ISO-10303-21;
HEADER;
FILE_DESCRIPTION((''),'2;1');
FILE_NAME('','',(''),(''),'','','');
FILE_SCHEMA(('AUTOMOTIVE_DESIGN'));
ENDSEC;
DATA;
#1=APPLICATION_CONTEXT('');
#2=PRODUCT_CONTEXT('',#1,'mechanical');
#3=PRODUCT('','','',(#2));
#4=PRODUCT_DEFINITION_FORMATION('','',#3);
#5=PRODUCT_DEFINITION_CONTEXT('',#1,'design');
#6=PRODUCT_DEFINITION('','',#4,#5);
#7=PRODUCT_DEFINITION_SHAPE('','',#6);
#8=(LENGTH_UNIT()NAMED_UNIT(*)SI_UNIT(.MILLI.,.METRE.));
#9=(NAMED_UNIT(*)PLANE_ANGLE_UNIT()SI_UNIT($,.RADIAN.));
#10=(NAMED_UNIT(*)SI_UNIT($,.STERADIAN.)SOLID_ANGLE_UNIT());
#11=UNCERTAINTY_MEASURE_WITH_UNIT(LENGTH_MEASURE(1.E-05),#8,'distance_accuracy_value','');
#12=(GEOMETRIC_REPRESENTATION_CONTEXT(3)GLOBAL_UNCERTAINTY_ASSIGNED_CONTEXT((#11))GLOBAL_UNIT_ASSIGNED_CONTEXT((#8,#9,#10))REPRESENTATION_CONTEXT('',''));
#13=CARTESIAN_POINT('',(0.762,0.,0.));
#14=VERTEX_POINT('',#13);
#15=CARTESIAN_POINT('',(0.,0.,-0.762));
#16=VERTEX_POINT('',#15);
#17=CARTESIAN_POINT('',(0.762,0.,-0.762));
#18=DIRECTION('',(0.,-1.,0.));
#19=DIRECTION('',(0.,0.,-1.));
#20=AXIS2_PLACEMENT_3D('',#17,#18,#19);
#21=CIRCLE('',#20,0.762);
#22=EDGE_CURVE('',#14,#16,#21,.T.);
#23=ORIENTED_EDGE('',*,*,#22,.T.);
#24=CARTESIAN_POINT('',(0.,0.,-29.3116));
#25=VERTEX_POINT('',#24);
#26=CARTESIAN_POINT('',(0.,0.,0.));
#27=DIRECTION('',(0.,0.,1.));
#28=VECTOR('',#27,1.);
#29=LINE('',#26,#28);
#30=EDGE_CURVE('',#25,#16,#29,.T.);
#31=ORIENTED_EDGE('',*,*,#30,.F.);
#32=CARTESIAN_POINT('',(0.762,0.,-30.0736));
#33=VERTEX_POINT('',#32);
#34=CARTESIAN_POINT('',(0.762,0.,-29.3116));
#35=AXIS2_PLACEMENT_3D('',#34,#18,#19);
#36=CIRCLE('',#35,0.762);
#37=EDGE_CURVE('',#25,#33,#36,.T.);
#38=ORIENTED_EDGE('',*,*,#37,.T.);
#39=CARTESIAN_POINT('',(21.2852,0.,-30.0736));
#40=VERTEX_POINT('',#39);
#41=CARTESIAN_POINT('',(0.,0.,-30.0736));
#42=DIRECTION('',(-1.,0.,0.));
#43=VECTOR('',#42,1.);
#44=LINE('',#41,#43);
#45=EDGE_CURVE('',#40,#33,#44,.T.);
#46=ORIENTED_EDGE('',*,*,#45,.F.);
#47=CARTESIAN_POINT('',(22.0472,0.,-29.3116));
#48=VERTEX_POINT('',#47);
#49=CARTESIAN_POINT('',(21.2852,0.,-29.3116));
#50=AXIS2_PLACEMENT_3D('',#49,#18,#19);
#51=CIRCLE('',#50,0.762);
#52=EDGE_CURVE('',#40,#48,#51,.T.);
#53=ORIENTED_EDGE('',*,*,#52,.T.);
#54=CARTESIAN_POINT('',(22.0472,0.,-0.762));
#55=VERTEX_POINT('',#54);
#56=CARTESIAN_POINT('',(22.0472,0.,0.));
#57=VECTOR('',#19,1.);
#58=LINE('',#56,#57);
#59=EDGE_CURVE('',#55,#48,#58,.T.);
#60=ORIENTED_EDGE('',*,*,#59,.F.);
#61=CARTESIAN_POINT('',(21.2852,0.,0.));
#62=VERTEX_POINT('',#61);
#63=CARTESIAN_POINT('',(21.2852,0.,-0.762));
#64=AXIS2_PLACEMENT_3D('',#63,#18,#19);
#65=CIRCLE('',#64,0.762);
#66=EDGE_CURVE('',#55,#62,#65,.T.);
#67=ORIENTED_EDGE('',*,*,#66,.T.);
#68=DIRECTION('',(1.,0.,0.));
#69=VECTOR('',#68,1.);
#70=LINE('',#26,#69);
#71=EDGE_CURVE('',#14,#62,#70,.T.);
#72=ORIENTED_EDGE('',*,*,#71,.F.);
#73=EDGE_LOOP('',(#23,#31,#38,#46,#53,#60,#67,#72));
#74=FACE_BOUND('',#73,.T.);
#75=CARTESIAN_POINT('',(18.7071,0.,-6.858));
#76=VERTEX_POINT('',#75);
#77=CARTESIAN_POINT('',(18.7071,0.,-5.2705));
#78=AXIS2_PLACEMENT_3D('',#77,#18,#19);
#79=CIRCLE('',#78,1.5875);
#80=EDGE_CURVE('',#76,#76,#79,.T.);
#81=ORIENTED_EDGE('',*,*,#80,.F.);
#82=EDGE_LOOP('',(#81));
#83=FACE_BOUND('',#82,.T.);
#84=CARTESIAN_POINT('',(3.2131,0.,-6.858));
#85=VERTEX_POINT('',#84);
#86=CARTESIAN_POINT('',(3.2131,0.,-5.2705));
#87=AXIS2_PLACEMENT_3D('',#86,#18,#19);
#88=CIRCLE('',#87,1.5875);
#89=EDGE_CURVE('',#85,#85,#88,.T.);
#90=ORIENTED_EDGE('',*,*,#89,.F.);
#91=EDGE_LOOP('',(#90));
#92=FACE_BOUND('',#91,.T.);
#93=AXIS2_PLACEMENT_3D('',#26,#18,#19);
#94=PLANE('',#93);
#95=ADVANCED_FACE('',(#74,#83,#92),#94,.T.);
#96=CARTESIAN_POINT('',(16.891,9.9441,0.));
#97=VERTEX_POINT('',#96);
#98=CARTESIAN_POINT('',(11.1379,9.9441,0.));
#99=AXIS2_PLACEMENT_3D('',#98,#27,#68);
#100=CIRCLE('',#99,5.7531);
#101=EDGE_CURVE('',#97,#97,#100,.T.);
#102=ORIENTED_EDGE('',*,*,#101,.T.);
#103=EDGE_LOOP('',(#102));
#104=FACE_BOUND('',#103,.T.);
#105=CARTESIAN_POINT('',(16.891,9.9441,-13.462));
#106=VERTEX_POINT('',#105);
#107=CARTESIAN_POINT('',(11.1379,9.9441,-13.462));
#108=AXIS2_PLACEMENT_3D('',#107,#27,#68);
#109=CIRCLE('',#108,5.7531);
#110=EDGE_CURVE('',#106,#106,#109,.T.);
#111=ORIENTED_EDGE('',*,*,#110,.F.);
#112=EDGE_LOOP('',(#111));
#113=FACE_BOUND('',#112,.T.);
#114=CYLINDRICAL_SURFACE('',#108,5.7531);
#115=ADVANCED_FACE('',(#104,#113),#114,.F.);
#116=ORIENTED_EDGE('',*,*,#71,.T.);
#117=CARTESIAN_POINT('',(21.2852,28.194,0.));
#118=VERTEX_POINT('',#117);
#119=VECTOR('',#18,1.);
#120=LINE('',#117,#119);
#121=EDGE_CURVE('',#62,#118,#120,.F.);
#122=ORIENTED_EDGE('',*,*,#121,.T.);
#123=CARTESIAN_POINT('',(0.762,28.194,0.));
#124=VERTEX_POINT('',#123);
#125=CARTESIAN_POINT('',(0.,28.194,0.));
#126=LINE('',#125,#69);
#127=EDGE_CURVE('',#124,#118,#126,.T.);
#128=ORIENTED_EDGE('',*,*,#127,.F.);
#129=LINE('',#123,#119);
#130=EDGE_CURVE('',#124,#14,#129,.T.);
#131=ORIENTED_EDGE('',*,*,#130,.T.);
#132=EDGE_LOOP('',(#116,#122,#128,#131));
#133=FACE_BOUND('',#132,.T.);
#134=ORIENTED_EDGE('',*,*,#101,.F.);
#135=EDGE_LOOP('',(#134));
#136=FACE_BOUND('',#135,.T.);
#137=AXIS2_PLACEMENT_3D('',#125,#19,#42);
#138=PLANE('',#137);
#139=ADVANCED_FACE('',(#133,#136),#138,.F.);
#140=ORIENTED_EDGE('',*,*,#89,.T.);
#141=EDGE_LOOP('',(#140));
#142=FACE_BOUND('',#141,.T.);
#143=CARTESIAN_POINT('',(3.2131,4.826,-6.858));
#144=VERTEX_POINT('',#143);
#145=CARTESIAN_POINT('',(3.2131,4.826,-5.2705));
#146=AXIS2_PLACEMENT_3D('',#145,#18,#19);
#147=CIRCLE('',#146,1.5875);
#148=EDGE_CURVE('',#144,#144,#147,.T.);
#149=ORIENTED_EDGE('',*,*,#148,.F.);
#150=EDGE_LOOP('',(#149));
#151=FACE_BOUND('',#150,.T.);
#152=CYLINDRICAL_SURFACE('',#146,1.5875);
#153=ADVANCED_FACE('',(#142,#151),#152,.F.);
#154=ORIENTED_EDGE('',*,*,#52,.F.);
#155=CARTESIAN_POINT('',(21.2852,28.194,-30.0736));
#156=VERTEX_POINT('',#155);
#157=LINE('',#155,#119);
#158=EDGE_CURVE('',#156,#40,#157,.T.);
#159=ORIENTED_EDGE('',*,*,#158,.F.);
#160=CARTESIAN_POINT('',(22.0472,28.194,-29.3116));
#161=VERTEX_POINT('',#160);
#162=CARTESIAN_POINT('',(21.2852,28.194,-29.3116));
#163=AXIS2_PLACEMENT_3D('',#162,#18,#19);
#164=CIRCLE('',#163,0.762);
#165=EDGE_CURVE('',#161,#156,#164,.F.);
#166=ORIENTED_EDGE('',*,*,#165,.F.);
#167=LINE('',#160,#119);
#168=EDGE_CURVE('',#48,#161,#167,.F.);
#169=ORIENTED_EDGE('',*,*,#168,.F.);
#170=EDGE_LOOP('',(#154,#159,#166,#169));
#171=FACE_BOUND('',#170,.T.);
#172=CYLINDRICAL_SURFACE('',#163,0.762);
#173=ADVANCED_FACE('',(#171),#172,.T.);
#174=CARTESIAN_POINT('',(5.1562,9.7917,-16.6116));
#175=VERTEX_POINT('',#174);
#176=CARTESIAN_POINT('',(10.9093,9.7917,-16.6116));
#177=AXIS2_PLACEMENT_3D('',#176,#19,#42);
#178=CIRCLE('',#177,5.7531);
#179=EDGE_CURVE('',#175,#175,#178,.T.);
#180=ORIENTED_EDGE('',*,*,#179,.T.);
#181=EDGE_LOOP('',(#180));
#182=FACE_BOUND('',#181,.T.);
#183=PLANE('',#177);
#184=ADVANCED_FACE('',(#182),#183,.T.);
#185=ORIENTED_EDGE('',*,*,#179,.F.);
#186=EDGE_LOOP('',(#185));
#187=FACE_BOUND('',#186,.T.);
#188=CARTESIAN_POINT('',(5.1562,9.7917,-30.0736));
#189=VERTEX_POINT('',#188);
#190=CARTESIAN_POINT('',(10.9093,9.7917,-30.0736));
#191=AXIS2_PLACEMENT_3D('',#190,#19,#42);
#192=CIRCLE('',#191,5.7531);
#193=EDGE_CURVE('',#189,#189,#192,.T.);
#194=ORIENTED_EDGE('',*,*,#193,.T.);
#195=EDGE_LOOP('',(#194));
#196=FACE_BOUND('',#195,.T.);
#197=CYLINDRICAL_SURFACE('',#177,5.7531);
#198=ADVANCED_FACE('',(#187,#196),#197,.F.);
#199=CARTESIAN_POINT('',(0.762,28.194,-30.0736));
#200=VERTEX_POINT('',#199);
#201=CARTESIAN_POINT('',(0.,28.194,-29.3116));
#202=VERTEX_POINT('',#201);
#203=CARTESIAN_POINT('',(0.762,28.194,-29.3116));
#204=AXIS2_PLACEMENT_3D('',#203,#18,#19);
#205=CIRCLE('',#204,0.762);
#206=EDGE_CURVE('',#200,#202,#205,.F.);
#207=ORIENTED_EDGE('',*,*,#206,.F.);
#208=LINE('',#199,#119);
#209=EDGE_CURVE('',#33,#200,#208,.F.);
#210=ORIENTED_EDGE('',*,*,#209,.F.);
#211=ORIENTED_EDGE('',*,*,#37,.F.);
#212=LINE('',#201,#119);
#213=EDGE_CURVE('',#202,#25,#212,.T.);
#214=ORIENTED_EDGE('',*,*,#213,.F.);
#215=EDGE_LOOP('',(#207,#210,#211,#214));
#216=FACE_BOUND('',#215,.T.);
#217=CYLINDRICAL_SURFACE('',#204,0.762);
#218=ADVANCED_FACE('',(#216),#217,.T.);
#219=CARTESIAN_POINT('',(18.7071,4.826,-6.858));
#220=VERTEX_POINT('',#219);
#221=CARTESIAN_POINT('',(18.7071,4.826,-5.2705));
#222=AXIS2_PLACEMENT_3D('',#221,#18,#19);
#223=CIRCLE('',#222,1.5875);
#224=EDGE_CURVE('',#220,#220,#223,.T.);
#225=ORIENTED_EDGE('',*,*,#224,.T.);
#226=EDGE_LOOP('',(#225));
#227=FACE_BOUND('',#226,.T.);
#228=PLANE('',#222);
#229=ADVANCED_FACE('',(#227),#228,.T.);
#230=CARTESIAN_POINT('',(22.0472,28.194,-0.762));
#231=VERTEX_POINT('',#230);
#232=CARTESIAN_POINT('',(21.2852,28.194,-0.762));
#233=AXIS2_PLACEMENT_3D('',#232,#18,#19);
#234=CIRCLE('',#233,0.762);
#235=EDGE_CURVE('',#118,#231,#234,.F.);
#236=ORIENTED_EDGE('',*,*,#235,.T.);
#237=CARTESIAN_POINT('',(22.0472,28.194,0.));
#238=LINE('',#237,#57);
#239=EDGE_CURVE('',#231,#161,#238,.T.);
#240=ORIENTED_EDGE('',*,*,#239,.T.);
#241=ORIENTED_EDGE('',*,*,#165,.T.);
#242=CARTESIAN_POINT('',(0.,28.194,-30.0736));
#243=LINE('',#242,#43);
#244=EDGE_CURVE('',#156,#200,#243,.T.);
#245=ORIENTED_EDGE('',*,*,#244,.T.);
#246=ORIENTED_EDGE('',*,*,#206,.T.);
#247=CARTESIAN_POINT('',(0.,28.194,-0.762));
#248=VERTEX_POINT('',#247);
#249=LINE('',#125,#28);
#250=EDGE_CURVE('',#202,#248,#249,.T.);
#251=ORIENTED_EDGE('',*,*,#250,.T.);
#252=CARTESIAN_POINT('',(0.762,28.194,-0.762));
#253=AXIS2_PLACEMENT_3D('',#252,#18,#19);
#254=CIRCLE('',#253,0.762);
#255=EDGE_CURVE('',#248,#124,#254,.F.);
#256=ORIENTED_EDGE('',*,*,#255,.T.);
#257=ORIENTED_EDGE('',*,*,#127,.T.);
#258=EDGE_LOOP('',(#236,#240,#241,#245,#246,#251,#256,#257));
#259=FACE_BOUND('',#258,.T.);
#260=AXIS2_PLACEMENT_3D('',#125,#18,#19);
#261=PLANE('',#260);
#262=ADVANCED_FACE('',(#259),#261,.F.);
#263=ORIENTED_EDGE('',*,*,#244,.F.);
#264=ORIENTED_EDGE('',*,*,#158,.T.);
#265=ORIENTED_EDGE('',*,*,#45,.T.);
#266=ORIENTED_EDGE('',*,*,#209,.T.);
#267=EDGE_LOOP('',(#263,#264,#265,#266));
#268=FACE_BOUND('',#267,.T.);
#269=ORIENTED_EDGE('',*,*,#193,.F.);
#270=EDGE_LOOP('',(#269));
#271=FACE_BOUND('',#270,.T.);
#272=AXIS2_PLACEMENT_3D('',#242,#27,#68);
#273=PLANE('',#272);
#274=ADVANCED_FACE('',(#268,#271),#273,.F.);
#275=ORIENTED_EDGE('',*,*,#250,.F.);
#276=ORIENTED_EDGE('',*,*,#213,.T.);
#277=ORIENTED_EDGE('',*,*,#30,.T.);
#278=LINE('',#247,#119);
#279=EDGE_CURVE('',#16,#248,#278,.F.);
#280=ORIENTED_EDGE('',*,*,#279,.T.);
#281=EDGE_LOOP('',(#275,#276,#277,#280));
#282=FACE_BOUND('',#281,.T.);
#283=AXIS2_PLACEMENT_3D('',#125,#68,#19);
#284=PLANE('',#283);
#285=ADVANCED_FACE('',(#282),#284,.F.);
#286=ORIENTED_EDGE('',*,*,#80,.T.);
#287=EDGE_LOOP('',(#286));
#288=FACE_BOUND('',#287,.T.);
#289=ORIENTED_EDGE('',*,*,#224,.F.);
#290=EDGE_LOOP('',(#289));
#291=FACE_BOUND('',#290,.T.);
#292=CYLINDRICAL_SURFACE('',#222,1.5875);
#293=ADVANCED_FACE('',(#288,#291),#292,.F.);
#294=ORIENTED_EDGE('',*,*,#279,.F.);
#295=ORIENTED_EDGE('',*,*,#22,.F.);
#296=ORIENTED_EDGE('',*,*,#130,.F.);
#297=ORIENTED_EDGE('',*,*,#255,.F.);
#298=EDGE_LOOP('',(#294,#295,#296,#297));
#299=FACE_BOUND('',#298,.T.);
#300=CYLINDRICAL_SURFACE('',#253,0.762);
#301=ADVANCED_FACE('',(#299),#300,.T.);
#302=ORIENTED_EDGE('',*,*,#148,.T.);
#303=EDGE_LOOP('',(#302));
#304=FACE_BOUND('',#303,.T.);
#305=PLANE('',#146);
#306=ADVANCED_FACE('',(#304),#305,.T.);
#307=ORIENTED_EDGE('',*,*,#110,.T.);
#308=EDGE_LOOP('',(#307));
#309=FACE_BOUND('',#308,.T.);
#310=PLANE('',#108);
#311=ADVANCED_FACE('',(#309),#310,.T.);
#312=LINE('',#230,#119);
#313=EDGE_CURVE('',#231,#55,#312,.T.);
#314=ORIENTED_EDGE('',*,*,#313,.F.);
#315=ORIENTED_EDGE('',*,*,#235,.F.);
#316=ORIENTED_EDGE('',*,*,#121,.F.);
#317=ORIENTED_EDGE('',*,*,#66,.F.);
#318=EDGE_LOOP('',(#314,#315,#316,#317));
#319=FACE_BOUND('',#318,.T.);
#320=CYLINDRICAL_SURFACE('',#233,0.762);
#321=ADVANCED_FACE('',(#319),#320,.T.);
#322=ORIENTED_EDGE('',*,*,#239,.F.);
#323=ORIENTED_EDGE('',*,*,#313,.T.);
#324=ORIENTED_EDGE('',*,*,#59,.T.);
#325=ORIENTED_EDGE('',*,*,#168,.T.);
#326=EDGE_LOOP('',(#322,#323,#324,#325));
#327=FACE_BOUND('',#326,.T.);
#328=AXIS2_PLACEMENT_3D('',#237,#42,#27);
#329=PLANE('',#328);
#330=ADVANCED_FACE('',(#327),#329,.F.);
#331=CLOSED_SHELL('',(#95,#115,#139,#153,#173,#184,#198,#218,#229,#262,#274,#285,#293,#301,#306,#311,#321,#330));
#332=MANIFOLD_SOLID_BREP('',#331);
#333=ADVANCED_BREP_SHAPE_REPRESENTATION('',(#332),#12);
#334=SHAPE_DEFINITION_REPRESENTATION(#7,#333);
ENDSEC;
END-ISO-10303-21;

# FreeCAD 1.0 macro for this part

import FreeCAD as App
import Part
import Sketcher
Q = App.Units.Quantity


def edges_at(feature, points):
    """Names of the edges that pass closest to the given points."""
    edges = feature.Shape.Edges
    near = lambda p: min(range(len(edges)), key=lambda i: edges[i].distToShape(Part.Vertex(*p))[0])
    return sorted({f"Edge{near(p) + 1}" for p in points})


def add_polygon(sketch, points):
    """Adds a closed chain of lines whose ends are joined by coincident constraints."""
    first, n = sketch.GeometryCount, len(points)
    for a, b in zip(points, points[1:] + points[:1]):
        sketch.addGeometry(Part.LineSegment(App.Vector(*a, 0), App.Vector(*b, 0)), False)
    for i in range(n):
        sketch.addConstraint(Sketcher.Constraint("Coincident", first + i, 2, first + (i + 1) % n, 1))

doc = App.newDocument("Part")
params = doc.addObject("Spreadsheet::Sheet", "Params")
for row, (alias, value) in enumerate([
    ("sketch1_width", "0.868 in"),
    ("sketch1_height", "1.184 in"),
    ("pad1_length", "1.11 in"),
    ("sketch2_diameter", "0.125 in"),
    ("pocket1_length", "0.19 in"),
    ("sketch3_diameter", "0.453 in"),
    ("pocket2_length", "0.53 in"),
    ("sketch4_diameter", "0.453 in"),
    ("pocket3_length", "0.53 in"),
    ("fillet_radius", "0.03 in"),
], start=1):
    params.set(f"A{row}", alias)
    params.set(f"B{row}", "=" + value)
    params.setAlias(f"B{row}", alias)

body = doc.addObject("PartDesign::Body", "Body")

# Sketch on XZ plane
sketch1 = body.newObject("Sketcher::SketchObject", "Sketch")
sketch1.AttachmentSupport = (doc.getObject("XZ_Plane"), [""])
sketch1.MapMode = "FlatFace"
add_polygon(sketch1, [(0, -30), (0, 0), (22, 0), (22, -30)])  # lines 0-3
sketch1.addConstraint(Sketcher.Constraint("Vertical", 0))
sketch1.addConstraint(Sketcher.Constraint("Horizontal", 1))
sketch1.addConstraint(Sketcher.Constraint("Vertical", 2))
sketch1.addConstraint(Sketcher.Constraint("Horizontal", 3))
sketch1.addConstraint(Sketcher.Constraint("Coincident", 0, 2, -1, 1))
sketch1.addConstraint(Sketcher.Constraint("DistanceX", 1, 1, 1, 2, Q("0.868 in")))
sketch1.addConstraint(Sketcher.Constraint("DistanceY", 0, 1, 0, 2, Q("1.184 in")))
sketch1.setExpression("Constraints[9]", "Params.sketch1_width")
sketch1.setExpression("Constraints[10]", "Params.sketch1_height")
pad1 = body.newObject("PartDesign::Pad", "Pad")
pad1.Profile = sketch1
pad1.setExpression("Length", "Params.pad1_length")
pad1.Reversed = True

# Sketch on XZ plane
sketch2 = body.newObject("Sketcher::SketchObject", "Sketch001")
sketch2.AttachmentSupport = (doc.getObject("XZ_Plane"), [""])
sketch2.MapMode = "FlatFace"
sketch2.addGeometry(Part.Circle(App.Vector(3.2, -5.3, 0), App.Vector(0, 0, 1), 1.6), False)
sketch2.addGeometry(Part.Circle(App.Vector(18.7, -5.3, 0), App.Vector(0, 0, 1), 1.6), False)
sketch2.addConstraint(Sketcher.Constraint("Equal", 0, 1))
sketch2.addConstraint(Sketcher.Constraint("Horizontal", 0, 3, 1, 3))
sketch2.addConstraint(Sketcher.Constraint("Diameter", 0, Q("0.125 in")))
sketch2.addConstraint(Sketcher.Constraint("DistanceX", 0, 3, 1, 3, Q("0.61 in")))
sketch2.addConstraint(Sketcher.Constraint("DistanceX", -1, 1, 0, 3, Q("0.1265 in")))
sketch2.addConstraint(Sketcher.Constraint("DistanceY", 0, 3, -1, 1, Q("0.2075 in")))
sketch2.setExpression("Constraints[2]", "Params.sketch2_diameter")
pocket1 = body.newObject("PartDesign::Pocket", "Pocket")
pocket1.Profile = sketch2
pocket1.setExpression("Length", "Params.pocket1_length")

# Sketch on XY plane
sketch3 = body.newObject("Sketcher::SketchObject", "Sketch002")
sketch3.AttachmentSupport = (doc.getObject("XY_Plane"), [""])
sketch3.MapMode = "FlatFace"
sketch3.addGeometry(Part.Circle(App.Vector(11, 10, 0), App.Vector(0, 0, 1), 6), False)
sketch3.addConstraint(Sketcher.Constraint("Diameter", 0, Q("0.453 in")))
sketch3.addConstraint(Sketcher.Constraint("DistanceX", -1, 1, 0, 3, Q("0.4385 in")))
sketch3.addConstraint(Sketcher.Constraint("DistanceY", -1, 1, 0, 3, Q("0.3915 in")))
sketch3.setExpression("Constraints[0]", "Params.sketch3_diameter")
pocket2 = body.newObject("PartDesign::Pocket", "Pocket001")
pocket2.Profile = sketch3
pocket2.setExpression("Length", "Params.pocket2_length")

# Sketch on XY plane
sketch4 = body.newObject("Sketcher::SketchObject", "Sketch003")
sketch4.AttachmentSupport = (doc.getObject("XY_Plane"), [""])
sketch4.MapMode = "FlatFace"
sketch4.AttachmentOffset = App.Placement(App.Vector(0, 0, -1.184 * 25.4), App.Rotation())
sketch4.addGeometry(Part.Circle(App.Vector(11, 10, 0), App.Vector(0, 0, 1), 6), False)
sketch4.addConstraint(Sketcher.Constraint("Diameter", 0, Q("0.453 in")))
sketch4.addConstraint(Sketcher.Constraint("DistanceX", -1, 1, 0, 3, Q("0.4295 in")))
sketch4.addConstraint(Sketcher.Constraint("DistanceY", -1, 1, 0, 3, Q("0.3855 in")))
sketch4.setExpression("Constraints[0]", "Params.sketch4_diameter")
pocket3 = body.newObject("PartDesign::Pocket", "Pocket002")
pocket3.Profile = sketch4
pocket3.setExpression("Length", "Params.pocket3_length")
pocket3.Reversed = True
doc.recompute()

fillet = body.newObject("PartDesign::Fillet", "Fillet")
fillet.Base = (pocket3, edges_at(pocket3, [
    (0, 14.097, -30.074),
    (22.047, 14.097, -30.074),
    (22.047, 14.097, 0),
    (0, 14.097, 0),
]))
fillet.setExpression("Radius", "Params.fillet_radius")

doc.recompute()
